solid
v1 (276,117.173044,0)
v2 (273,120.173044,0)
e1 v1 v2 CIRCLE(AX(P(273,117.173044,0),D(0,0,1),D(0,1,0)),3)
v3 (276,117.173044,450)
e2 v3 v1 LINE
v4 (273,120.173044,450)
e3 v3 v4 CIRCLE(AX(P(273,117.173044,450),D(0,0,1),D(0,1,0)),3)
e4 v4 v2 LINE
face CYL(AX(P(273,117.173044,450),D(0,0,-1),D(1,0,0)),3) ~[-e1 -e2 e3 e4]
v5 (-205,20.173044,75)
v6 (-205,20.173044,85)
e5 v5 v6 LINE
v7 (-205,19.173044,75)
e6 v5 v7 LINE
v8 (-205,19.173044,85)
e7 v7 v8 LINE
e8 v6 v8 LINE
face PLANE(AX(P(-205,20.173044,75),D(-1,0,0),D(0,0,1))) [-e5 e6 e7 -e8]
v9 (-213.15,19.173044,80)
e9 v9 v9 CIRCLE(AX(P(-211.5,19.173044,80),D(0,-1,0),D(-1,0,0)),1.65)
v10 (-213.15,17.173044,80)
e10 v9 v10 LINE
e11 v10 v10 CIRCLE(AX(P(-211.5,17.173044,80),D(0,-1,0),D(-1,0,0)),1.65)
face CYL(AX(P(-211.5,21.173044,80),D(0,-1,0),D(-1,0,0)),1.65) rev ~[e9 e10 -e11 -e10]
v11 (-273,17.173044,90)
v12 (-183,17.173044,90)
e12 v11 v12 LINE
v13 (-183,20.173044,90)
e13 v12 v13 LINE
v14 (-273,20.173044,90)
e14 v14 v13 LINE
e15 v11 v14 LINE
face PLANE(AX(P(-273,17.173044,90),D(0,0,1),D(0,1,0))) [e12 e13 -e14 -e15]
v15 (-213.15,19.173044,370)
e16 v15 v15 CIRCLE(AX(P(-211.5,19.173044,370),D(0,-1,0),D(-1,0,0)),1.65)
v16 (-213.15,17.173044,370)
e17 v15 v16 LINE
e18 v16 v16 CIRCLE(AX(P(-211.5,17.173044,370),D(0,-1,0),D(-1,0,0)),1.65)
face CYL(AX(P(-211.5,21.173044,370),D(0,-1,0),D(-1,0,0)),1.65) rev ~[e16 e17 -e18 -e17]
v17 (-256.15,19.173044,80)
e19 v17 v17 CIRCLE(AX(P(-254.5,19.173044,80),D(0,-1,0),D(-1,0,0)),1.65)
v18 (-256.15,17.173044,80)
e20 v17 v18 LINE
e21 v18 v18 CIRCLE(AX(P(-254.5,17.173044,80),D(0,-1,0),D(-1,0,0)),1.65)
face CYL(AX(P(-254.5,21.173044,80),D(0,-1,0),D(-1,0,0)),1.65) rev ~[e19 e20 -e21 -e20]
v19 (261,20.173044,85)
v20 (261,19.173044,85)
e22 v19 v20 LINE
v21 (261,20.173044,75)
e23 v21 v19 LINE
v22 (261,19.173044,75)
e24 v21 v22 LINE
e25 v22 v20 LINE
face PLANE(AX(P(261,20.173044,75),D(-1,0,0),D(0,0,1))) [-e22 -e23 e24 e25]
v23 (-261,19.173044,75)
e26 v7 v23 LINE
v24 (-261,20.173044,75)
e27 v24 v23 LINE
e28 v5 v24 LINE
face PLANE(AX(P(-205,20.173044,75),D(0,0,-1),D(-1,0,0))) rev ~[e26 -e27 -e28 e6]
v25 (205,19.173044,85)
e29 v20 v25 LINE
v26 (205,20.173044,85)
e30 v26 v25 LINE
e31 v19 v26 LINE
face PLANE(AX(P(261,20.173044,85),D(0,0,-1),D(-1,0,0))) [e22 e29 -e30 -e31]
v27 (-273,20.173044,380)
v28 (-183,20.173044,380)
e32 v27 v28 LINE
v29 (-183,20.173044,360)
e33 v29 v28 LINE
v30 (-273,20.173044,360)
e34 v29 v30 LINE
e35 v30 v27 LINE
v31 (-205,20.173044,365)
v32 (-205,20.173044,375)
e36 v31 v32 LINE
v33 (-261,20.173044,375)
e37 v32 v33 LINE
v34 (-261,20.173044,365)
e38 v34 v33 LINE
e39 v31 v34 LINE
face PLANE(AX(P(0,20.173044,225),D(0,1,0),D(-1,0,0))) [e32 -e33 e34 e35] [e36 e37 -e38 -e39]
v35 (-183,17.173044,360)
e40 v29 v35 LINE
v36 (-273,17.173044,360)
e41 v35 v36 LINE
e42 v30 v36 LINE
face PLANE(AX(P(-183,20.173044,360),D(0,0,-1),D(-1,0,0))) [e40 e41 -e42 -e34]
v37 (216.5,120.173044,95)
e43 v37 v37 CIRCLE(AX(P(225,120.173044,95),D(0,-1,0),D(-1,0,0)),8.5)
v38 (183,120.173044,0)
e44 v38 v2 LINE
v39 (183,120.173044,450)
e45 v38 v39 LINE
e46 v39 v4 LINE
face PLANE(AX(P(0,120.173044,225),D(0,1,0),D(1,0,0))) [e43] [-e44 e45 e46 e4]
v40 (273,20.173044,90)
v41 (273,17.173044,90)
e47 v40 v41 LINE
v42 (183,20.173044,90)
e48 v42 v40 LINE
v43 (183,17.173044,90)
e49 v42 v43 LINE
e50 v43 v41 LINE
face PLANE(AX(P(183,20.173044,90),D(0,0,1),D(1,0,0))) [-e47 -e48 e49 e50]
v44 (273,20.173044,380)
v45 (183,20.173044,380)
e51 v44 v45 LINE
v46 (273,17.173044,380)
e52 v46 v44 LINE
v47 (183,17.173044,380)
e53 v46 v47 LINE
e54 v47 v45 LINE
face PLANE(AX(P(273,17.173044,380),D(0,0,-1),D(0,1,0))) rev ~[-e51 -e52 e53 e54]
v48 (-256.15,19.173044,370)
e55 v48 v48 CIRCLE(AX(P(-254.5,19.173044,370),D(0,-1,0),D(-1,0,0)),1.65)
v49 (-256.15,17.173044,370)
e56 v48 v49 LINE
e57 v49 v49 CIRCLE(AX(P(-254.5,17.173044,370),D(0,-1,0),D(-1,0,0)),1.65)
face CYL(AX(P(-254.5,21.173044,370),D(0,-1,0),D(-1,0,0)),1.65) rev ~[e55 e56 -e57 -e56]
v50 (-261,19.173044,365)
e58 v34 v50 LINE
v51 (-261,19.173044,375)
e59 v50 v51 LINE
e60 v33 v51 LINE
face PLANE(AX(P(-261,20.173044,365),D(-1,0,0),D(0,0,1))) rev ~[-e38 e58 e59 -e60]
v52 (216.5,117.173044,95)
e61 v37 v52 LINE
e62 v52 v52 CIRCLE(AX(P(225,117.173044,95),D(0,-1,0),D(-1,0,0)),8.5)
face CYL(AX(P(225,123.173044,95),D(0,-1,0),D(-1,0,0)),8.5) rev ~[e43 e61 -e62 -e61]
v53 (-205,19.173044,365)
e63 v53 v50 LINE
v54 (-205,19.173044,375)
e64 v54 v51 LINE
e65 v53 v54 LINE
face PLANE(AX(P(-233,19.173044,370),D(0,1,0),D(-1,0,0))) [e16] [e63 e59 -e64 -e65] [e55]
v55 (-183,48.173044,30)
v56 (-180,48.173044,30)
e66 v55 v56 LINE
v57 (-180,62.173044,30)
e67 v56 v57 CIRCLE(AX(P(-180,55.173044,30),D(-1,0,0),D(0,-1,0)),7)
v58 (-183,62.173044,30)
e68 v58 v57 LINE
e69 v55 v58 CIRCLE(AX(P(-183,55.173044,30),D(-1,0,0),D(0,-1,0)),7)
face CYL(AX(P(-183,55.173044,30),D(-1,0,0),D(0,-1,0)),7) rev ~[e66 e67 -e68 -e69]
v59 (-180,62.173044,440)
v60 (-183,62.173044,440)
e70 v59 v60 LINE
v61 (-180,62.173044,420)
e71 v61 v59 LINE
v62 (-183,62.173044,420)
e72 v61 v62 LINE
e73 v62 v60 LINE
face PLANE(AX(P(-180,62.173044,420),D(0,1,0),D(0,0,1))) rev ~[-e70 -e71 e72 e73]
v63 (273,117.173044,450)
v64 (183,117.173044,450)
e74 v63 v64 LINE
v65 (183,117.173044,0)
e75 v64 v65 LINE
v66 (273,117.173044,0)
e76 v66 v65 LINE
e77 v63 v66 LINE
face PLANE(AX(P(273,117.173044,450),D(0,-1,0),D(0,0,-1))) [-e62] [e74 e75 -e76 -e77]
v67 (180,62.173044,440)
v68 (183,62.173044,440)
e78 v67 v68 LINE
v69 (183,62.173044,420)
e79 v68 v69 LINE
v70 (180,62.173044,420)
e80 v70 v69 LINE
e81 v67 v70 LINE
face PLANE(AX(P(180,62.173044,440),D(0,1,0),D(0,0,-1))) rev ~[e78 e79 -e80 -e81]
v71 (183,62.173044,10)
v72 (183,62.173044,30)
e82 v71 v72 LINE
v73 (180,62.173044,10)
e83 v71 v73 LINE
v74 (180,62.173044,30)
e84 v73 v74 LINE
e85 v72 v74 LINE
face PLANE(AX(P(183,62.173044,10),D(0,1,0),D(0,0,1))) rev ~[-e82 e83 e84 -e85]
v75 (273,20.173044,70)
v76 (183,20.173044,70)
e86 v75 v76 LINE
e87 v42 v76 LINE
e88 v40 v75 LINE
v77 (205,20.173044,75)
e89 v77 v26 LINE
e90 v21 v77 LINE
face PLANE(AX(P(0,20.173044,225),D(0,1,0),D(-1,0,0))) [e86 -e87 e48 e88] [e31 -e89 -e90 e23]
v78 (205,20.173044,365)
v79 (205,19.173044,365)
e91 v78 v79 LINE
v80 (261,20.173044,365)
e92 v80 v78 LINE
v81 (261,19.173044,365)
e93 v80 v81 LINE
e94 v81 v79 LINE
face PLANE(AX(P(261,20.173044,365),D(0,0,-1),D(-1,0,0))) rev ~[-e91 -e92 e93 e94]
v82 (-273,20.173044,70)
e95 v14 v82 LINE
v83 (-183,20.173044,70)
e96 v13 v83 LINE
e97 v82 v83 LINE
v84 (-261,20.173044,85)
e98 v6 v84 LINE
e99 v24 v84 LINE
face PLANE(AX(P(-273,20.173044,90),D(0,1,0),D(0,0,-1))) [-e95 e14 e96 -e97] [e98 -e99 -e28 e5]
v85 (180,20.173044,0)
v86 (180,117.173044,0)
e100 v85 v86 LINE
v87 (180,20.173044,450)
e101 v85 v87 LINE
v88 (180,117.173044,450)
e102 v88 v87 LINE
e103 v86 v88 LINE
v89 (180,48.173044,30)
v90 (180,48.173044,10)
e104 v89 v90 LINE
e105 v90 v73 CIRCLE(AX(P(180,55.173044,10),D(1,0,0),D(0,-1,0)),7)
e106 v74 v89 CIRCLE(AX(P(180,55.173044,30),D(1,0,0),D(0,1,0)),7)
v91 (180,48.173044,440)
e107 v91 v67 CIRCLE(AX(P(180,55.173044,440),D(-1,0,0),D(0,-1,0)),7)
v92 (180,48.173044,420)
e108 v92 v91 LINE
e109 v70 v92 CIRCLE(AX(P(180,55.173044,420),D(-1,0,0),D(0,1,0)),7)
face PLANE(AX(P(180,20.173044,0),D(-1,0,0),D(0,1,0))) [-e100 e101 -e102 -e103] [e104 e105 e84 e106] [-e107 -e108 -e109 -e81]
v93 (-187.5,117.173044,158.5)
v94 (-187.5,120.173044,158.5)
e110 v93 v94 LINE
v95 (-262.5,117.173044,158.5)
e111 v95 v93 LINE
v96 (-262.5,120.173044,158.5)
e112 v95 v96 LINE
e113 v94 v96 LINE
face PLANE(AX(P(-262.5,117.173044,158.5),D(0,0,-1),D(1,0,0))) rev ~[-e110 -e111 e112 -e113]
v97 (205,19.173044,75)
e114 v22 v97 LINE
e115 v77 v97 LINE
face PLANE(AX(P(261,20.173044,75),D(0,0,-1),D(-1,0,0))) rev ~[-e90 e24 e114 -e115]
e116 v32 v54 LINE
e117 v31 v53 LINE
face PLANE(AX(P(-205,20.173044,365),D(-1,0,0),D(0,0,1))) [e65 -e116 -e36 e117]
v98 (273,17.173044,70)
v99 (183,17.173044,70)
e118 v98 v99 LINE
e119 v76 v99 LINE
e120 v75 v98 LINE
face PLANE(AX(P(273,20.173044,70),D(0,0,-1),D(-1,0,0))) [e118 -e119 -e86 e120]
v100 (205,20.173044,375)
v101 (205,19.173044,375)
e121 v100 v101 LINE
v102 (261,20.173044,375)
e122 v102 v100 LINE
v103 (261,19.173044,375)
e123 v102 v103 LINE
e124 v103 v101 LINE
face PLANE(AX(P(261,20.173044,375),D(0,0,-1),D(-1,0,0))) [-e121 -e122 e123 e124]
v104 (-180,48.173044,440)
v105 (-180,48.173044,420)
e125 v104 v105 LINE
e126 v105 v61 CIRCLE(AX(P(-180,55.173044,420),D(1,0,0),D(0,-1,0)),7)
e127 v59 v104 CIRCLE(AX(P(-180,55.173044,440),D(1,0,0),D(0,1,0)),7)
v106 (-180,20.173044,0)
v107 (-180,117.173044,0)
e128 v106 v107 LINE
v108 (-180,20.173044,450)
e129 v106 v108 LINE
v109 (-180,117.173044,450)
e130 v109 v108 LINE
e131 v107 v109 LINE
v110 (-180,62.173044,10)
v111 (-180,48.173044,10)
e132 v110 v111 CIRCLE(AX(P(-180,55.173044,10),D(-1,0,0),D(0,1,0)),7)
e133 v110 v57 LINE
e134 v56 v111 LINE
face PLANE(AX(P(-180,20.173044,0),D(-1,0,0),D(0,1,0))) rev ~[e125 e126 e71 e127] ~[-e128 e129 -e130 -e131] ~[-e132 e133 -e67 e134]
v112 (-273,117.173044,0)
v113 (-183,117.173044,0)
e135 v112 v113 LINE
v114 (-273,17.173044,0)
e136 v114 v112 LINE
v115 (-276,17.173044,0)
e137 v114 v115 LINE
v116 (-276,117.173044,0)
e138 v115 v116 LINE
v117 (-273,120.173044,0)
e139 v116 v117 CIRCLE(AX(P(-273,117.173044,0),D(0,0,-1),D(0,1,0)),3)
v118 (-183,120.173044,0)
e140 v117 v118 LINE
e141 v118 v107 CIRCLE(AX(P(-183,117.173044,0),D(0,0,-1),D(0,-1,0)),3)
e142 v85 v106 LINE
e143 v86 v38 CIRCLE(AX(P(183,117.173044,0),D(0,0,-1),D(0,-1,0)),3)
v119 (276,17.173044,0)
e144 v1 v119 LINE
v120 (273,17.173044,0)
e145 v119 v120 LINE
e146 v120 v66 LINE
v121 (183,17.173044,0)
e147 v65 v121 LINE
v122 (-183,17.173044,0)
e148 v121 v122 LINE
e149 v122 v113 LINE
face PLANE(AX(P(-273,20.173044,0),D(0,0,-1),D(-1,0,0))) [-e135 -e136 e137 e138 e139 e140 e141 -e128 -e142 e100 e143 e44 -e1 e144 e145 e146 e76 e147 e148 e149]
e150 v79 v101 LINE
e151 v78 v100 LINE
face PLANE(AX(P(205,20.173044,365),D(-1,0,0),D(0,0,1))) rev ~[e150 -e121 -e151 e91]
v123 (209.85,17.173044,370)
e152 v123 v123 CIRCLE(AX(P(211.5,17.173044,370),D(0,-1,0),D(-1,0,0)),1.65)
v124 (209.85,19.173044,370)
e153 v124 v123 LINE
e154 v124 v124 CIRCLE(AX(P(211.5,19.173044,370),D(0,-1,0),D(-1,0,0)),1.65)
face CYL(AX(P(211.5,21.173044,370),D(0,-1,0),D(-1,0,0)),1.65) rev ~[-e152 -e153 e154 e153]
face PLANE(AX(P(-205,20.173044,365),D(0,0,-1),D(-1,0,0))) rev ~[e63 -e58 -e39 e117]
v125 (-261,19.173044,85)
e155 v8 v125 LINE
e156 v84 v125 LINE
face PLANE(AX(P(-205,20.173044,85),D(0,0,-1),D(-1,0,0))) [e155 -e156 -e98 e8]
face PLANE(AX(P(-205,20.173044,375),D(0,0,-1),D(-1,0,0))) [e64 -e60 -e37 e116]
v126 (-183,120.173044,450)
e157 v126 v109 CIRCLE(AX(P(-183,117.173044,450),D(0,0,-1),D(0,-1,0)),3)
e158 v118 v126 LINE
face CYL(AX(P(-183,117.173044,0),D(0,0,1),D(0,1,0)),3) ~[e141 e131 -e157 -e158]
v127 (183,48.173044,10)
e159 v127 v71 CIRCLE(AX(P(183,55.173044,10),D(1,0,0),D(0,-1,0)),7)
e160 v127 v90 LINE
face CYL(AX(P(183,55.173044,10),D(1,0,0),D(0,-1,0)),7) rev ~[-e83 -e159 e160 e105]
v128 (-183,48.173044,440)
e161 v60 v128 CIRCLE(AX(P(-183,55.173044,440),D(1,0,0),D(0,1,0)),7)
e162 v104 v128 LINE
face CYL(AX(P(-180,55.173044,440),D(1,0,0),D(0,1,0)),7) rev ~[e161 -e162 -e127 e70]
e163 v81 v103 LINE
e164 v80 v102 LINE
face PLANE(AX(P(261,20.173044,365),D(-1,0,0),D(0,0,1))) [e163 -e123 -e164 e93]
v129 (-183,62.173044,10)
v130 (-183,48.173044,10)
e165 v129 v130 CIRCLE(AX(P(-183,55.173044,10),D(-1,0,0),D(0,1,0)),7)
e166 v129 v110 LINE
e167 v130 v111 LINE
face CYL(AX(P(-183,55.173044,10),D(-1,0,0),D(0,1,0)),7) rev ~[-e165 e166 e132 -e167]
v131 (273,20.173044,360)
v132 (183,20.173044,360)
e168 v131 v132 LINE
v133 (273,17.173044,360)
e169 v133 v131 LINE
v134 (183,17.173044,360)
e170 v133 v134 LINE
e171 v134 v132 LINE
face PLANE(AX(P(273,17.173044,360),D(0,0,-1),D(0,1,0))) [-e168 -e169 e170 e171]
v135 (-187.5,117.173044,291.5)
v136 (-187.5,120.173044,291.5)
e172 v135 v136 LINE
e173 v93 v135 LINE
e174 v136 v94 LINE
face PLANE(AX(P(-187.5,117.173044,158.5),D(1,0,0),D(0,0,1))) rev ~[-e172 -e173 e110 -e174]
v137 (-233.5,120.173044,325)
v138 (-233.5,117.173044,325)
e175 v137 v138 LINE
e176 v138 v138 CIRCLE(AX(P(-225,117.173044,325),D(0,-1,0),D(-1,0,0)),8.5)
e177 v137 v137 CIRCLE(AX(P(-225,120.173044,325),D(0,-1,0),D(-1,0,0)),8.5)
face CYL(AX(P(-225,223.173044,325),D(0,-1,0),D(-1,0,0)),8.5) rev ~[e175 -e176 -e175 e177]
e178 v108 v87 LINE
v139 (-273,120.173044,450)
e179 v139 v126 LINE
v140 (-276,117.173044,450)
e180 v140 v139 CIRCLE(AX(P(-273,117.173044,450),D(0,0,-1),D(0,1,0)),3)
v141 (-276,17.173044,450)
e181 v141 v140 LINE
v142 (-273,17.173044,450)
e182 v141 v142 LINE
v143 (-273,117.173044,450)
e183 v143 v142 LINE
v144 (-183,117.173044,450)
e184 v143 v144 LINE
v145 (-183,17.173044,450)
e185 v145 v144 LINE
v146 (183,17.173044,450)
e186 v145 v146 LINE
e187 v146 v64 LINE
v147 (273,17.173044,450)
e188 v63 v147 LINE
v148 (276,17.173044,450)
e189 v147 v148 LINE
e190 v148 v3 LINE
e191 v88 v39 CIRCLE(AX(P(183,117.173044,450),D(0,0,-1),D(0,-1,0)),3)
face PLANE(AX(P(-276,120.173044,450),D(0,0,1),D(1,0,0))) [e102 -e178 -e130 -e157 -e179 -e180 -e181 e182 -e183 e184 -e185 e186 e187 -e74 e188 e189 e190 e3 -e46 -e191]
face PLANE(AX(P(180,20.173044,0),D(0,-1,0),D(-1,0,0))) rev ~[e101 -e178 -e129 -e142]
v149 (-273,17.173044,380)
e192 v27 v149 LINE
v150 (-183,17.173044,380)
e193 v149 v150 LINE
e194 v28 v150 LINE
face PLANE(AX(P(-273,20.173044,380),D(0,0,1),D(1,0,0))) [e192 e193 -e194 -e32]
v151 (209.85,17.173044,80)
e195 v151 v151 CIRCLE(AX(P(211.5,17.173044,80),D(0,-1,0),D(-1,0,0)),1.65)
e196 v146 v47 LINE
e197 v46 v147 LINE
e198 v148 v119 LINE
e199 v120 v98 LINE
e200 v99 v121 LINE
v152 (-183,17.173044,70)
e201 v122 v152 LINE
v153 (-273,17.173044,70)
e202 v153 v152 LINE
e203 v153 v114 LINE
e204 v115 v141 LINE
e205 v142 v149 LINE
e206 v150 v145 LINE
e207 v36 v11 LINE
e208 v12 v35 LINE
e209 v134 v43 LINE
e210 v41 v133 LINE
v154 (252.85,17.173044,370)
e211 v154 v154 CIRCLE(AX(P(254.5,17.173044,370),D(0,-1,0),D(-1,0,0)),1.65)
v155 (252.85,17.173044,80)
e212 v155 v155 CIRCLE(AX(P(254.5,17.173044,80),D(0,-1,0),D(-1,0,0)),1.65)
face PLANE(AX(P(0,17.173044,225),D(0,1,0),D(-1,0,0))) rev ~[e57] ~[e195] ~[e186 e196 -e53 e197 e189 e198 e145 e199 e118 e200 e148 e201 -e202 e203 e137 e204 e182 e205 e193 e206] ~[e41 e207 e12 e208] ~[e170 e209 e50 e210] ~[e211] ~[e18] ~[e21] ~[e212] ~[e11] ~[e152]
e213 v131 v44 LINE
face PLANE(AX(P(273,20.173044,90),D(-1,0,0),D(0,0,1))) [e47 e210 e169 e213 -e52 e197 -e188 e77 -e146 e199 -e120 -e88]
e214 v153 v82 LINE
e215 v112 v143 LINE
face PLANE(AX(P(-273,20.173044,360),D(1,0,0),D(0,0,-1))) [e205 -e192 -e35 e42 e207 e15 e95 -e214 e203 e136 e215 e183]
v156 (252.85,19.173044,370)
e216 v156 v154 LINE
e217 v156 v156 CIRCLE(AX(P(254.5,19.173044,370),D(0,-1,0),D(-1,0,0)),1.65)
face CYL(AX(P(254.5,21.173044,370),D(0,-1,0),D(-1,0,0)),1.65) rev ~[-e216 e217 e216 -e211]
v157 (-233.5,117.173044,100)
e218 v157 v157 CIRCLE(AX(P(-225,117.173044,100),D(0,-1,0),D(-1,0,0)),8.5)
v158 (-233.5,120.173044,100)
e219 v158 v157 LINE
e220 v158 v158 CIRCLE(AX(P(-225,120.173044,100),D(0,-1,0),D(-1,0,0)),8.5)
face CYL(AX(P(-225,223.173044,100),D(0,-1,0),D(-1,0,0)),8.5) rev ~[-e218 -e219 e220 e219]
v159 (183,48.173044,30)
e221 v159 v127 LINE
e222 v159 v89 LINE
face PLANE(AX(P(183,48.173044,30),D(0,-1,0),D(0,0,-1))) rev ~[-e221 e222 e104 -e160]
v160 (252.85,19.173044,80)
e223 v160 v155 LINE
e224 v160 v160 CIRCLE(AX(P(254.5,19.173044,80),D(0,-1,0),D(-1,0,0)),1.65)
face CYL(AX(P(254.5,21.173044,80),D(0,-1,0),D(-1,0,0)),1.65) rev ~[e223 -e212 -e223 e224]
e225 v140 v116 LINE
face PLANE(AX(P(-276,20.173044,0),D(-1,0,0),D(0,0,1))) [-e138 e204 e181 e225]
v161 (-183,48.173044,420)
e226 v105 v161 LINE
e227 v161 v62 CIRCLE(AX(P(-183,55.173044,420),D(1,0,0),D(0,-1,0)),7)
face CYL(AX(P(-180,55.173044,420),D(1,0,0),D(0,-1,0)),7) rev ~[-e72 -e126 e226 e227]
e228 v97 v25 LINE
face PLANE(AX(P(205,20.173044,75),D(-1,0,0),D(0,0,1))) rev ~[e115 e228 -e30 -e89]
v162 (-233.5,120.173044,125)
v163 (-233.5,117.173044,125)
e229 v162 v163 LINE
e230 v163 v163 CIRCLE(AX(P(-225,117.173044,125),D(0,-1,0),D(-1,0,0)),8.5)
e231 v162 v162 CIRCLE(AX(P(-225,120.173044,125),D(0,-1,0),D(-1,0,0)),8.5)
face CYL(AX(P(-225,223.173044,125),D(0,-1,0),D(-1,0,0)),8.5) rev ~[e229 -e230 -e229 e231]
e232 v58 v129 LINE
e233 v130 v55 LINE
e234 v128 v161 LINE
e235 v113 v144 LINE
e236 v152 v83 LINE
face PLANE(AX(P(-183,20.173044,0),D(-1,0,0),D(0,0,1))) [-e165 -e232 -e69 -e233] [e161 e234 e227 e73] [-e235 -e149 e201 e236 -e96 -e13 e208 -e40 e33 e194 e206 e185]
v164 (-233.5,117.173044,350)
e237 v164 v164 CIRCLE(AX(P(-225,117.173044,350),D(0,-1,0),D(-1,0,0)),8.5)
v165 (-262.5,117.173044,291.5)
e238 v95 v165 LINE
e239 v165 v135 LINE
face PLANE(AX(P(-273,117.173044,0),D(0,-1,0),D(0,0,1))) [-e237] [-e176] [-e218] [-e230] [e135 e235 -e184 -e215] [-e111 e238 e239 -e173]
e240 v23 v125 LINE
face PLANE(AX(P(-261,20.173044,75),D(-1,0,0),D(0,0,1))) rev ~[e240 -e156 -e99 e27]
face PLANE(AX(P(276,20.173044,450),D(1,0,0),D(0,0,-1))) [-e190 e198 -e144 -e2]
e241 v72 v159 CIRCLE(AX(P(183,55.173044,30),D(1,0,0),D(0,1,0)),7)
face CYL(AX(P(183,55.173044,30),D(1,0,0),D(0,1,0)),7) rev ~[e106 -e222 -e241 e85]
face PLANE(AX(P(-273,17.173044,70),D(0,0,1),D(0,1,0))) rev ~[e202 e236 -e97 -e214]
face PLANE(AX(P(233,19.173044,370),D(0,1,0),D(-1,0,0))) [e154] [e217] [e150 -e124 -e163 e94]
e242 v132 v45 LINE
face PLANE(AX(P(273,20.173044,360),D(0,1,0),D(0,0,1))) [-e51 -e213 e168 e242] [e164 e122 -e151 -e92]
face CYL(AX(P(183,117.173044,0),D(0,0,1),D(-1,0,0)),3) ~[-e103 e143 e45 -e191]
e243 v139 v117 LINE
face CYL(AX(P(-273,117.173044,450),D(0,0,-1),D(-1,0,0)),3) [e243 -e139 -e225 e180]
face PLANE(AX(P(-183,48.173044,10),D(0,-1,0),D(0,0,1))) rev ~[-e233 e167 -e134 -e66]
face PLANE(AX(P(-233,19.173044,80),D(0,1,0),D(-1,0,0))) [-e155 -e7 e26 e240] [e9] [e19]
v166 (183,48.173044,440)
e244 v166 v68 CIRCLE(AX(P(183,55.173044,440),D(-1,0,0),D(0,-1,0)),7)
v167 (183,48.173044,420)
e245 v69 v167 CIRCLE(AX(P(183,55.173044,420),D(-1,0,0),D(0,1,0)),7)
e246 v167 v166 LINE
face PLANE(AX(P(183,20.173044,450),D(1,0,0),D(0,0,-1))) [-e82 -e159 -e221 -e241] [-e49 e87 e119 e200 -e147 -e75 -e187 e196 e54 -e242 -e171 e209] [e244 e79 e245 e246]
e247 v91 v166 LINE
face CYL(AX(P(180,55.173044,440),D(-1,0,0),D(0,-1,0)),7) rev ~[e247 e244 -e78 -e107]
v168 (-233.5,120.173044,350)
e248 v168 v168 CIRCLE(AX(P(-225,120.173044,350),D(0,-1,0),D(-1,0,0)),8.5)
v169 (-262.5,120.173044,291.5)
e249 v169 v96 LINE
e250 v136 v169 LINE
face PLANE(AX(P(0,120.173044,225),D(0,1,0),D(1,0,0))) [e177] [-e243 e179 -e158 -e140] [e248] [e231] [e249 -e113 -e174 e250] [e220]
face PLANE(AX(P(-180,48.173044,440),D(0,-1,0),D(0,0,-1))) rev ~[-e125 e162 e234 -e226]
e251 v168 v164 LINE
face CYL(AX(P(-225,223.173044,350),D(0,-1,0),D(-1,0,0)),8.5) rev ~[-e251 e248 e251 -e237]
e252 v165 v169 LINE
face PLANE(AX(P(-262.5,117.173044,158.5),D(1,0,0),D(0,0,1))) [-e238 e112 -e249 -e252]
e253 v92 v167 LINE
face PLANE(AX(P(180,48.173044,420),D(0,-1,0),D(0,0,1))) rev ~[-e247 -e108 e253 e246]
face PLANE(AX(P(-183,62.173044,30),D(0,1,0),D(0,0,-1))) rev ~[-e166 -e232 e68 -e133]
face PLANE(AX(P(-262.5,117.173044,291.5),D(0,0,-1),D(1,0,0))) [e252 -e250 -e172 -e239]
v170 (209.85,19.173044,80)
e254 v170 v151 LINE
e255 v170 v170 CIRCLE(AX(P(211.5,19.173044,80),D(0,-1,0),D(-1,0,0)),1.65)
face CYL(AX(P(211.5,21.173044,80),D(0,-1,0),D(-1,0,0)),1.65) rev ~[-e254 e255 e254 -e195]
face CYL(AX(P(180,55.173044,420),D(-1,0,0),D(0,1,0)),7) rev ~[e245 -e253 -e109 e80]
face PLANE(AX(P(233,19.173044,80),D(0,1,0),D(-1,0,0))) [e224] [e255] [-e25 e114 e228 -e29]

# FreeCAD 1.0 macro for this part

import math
import FreeCAD as App
import Part
import Sketcher
from FreeCAD import Vector
Q = App.Units.Quantity


def edges_at(feature, points):
    """Names of the edges that pass closest to the given points."""
    edges = feature.Shape.Edges
    near = lambda p: min(range(len(edges)), key=lambda i: edges[i].distToShape(Part.Vertex(*p))[0])
    return sorted({f"Edge{near(p) + 1}" for p in points})


def add_polygon(sketch, points):
    """Adds a closed chain of lines whose ends are joined by coincident constraints."""
    first, n = sketch.GeometryCount, len(points)
    for a, b in zip(points, points[1:] + points[:1]):
        sketch.addGeometry(Part.LineSegment(App.Vector(*a, 0), App.Vector(*b, 0)), False)
    for i in range(n):
        sketch.addConstraint(Sketcher.Constraint("Coincident", first + i, 2, first + (i + 1) % n, 1))

doc = App.newDocument("Part")
body = doc.addObject("PartDesign::Body", "Body")

sketch1 = doc.addObject("Sketcher::SketchObject", "Sketch")
body.addObject(sketch1)
sketch1.AttachmentSupport = (doc.XZ_Plane, [""])
sketch1.MapMode = "FlatFace"
sketch1.AttachmentOffset = App.Placement(Vector(0, 0, -120.173044), App.Rotation())
add_polygon(sketch1, [(-276, 0), (-276, 450), (276, 450), (276, 0)])
sketch1.addConstraint(Sketcher.Constraint("Vertical", 0))
sketch1.addConstraint(Sketcher.Constraint("Horizontal", 1))
sketch1.addConstraint(Sketcher.Constraint("Vertical", 2))
sketch1.addConstraint(Sketcher.Constraint("Horizontal", 3))
sketch1.addConstraint(Sketcher.Constraint("Symmetric", 2, 2, 3, 2, -1, 1))
sketch1.addConstraint(Sketcher.Constraint("DistanceX", 1, 1, 1, 2, Q("552 mm")))
sketch1.addConstraint(Sketcher.Constraint("DistanceY", 0, 1, 0, 2, Q("450 mm")))
pad1 = doc.addObject("PartDesign::Pad", "Pad")
body.addObject(pad1)
pad1.Profile = sketch1
pad1.Length = 100

sketch2 = doc.addObject("Sketcher::SketchObject", "Sketch001")
body.addObject(sketch2)
sketch2.AttachmentSupport = (doc.YZ_Plane, [""])
sketch2.MapMode = "FlatFace"
sketch2.AttachmentOffset = App.Placement(Vector(0, 0, -273), App.Rotation())
add_polygon(sketch2, [(117, 450), (117, 0), (20, 0), (20, 450)])
sketch2.addConstraint(Sketcher.Constraint("Vertical", 0))
sketch2.addConstraint(Sketcher.Constraint("Horizontal", 1))
sketch2.addConstraint(Sketcher.Constraint("Vertical", 2))
sketch2.addConstraint(Sketcher.Constraint("Horizontal", 3))
sketch2.addConstraint(Sketcher.Constraint("PointOnObject", 0, 2, -1))
sketch2.addConstraint(Sketcher.Constraint("DistanceX", 1, 2, 1, 1, Q("97 mm")))
sketch2.addConstraint(Sketcher.Constraint("DistanceY", 0, 2, 0, 1, Q("450 mm")))
sketch2.addConstraint(Sketcher.Constraint("DistanceX", -1, 1, 0, 2, Q("117.173044 mm")))
pocket1 = doc.addObject("PartDesign::Pocket", "Pocket")
body.addObject(pocket1)
pocket1.Profile = sketch2
pocket1.Length = 90
pocket1.Reversed = True

sketch3 = doc.addObject("Sketcher::SketchObject", "Sketch002")
body.addObject(sketch3)
sketch3.AttachmentSupport = (doc.YZ_Plane, [""])
sketch3.MapMode = "FlatFace"
sketch3.AttachmentOffset = App.Placement(Vector(0, 0, 273), App.Rotation())
add_polygon(sketch3, [(117, 450), (20, 450), (20, 0), (117, 0)])
sketch3.addConstraint(Sketcher.Constraint("Horizontal", 0))
sketch3.addConstraint(Sketcher.Constraint("Vertical", 1))
sketch3.addConstraint(Sketcher.Constraint("Horizontal", 2))
sketch3.addConstraint(Sketcher.Constraint("Vertical", 3))
sketch3.addConstraint(Sketcher.Constraint("PointOnObject", 1, 2, -1))
sketch3.addConstraint(Sketcher.Constraint("DistanceX", 0, 2, 0, 1, Q("97 mm")))
sketch3.addConstraint(Sketcher.Constraint("DistanceY", 1, 2, 1, 1, Q("450 mm")))
sketch3.addConstraint(Sketcher.Constraint("DistanceX", -1, 1, 0, 2, Q("20.173044 mm")))
pocket2 = doc.addObject("PartDesign::Pocket", "Pocket001")
body.addObject(pocket2)
pocket2.Profile = sketch3
pocket2.Length = 90

sketch4 = doc.addObject("Sketcher::SketchObject", "Sketch003")
body.addObject(sketch4)
sketch4.AttachmentSupport = (doc.XZ_Plane, [""])
sketch4.MapMode = "FlatFace"
sketch4.AttachmentOffset = App.Placement(Vector(0, 0, -20.173044), App.Rotation())
add_polygon(sketch4, [(-273, 0), (-273, 360), (-183, 360), (-183, 0), (183, 0), (183, 70), (273, 70), (273, 0), (276, 0), (276, 450), (273, 450), (273, 90), (183, 90), (183, 450), (-183, 450), (-183, 380), (-273, 380), (-273, 450), (-276, 450), (-276, 0)])
sketch4.addConstraint(Sketcher.Constraint("Vertical", 0))
sketch4.addConstraint(Sketcher.Constraint("Horizontal", 1))
sketch4.addConstraint(Sketcher.Constraint("Vertical", 2))
sketch4.addConstraint(Sketcher.Constraint("Horizontal", 3))
sketch4.addConstraint(Sketcher.Constraint("Vertical", 4))
sketch4.addConstraint(Sketcher.Constraint("Horizontal", 5))
sketch4.addConstraint(Sketcher.Constraint("Vertical", 6))
sketch4.addConstraint(Sketcher.Constraint("Horizontal", 7))
sketch4.addConstraint(Sketcher.Constraint("Vertical", 8))
sketch4.addConstraint(Sketcher.Constraint("Horizontal", 9))
sketch4.addConstraint(Sketcher.Constraint("Vertical", 10))
sketch4.addConstraint(Sketcher.Constraint("Horizontal", 11))
sketch4.addConstraint(Sketcher.Constraint("Vertical", 12))
sketch4.addConstraint(Sketcher.Constraint("Horizontal", 13))
sketch4.addConstraint(Sketcher.Constraint("Vertical", 14))
sketch4.addConstraint(Sketcher.Constraint("Horizontal", 15))
sketch4.addConstraint(Sketcher.Constraint("Vertical", 16))
sketch4.addConstraint(Sketcher.Constraint("Horizontal", 17))
sketch4.addConstraint(Sketcher.Constraint("Vertical", 18))
sketch4.addConstraint(Sketcher.Constraint("Horizontal", 19))
sketch4.addConstraint(Sketcher.Constraint("Symmetric", 2, 2, 3, 2, -1, 1))
sketch4.addConstraint(Sketcher.Constraint("Symmetric", 7, 2, 18, 2, -1, 1))
sketch4.addConstraint(Sketcher.Constraint("Symmetric", 9, 2, 16, 2, -2))
sketch4.addConstraint(Sketcher.Constraint("Symmetric", 6, 2, 19, 2, -2))
sketch4.addConstraint(Sketcher.Constraint("Horizontal", 9, 2, 12, 2))
sketch4.addConstraint(Sketcher.Constraint("Vertical", 6, 2, 9, 2))
sketch4.addConstraint(Sketcher.Constraint("Vertical", 4, 2, 11, 2))
sketch4.addConstraint(Sketcher.Constraint("Vertical", 2, 2, 13, 2))
sketch4.addConstraint(Sketcher.Constraint("Equal", 2, 10))
sketch4.addConstraint(Sketcher.Constraint("Equal", 6, 14))
sketch4.addConstraint(Sketcher.Constraint("DistanceX", 1, 1, 1, 2, Q("90 mm")))
sketch4.addConstraint(Sketcher.Constraint("DistanceX", 3, 1, 3, 2, Q("366 mm")))
sketch4.addConstraint(Sketcher.Constraint("DistanceX", 7, 1, 7, 2, Q("3 mm")))
sketch4.addConstraint(Sketcher.Constraint("DistanceY", 0, 1, 0, 2, Q("360 mm")))
sketch4.addConstraint(Sketcher.Constraint("DistanceY", 4, 1, 4, 2, Q("70 mm")))
sketch4.addConstraint(Sketcher.Constraint("DistanceY", 8, 1, 8, 2, Q("450 mm")))
pad2 = doc.addObject("PartDesign::Pad", "Pad001")
body.addObject(pad2)
pad2.Profile = sketch4
pad2.Length = 3

sketch5 = doc.addObject("Sketcher::SketchObject", "Sketch004")
body.addObject(sketch5)
sketch5.AttachmentSupport = (doc.XY_Plane, [""])
sketch5.MapMode = "FlatFace"
add_polygon(sketch5, [(180, 120), (180, 20), (-180, 20), (-180, 120)])
sketch5.addConstraint(Sketcher.Constraint("Vertical", 0))
sketch5.addConstraint(Sketcher.Constraint("Horizontal", 1))
sketch5.addConstraint(Sketcher.Constraint("Vertical", 2))
sketch5.addConstraint(Sketcher.Constraint("Horizontal", 3))
sketch5.addConstraint(Sketcher.Constraint("DistanceX", 1, 2, 1, 1, Q("360 mm")))
sketch5.addConstraint(Sketcher.Constraint("DistanceY", 0, 2, 0, 1, Q("100 mm")))
sketch5.addConstraint(Sketcher.Constraint("DistanceX", -1, 1, 0, 2, Q("180 mm")))
sketch5.addConstraint(Sketcher.Constraint("DistanceY", -1, 1, 0, 2, Q("20.173044 mm")))
pocket3 = doc.addObject("PartDesign::Pocket", "Pocket002")
body.addObject(pocket3)
pocket3.Profile = sketch5
pocket3.Type = "ThroughAll"
pocket3.Reversed = True

sketch6 = doc.addObject("Sketcher::SketchObject", "Sketch005")
body.addObject(sketch6)
sketch6.AttachmentSupport = (doc.YZ_Plane, [""])
sketch6.MapMode = "FlatFace"
sketch6.AttachmentOffset = App.Placement(Vector(0, 0, -273), App.Rotation())
add_polygon(sketch6, [(20.2, 90), (17.2, 90), (17.2, 70), (20.2, 70)])
sketch6.addConstraint(Sketcher.Constraint("Horizontal", 0))
sketch6.addConstraint(Sketcher.Constraint("Vertical", 1))
sketch6.addConstraint(Sketcher.Constraint("Horizontal", 2))
sketch6.addConstraint(Sketcher.Constraint("Vertical", 3))
sketch6.addConstraint(Sketcher.Constraint("DistanceX", 0, 2, 0, 1, Q("3 mm")))
sketch6.addConstraint(Sketcher.Constraint("DistanceY", 1, 2, 1, 1, Q("20 mm")))
sketch6.addConstraint(Sketcher.Constraint("DistanceY", -1, 1, 0, 2, Q("90 mm")))
sketch6.addConstraint(Sketcher.Constraint("DistanceX", -1, 1, 0, 2, Q("17.173044 mm")))
pad3 = doc.addObject("PartDesign::Pad", "Pad002")
body.addObject(pad3)
pad3.Profile = sketch6
pad3.Length = 90

sketch7 = doc.addObject("Sketcher::SketchObject", "Sketch006")
body.addObject(sketch7)
sketch7.AttachmentSupport = (doc.YZ_Plane, [""])
sketch7.MapMode = "FlatFace"
sketch7.AttachmentOffset = App.Placement(Vector(0, 0, 273), App.Rotation())
add_polygon(sketch7, [(20.2, 360), (17.2, 360), (17.2, 380), (20.2, 380)])
sketch7.addConstraint(Sketcher.Constraint("Horizontal", 0))
sketch7.addConstraint(Sketcher.Constraint("Vertical", 1))
sketch7.addConstraint(Sketcher.Constraint("Horizontal", 2))
sketch7.addConstraint(Sketcher.Constraint("Vertical", 3))
sketch7.addConstraint(Sketcher.Constraint("DistanceX", 0, 2, 0, 1, Q("3 mm")))
sketch7.addConstraint(Sketcher.Constraint("DistanceY", 1, 1, 1, 2, Q("20 mm")))
sketch7.addConstraint(Sketcher.Constraint("DistanceY", -1, 1, 0, 2, Q("360 mm")))
sketch7.addConstraint(Sketcher.Constraint("DistanceX", -1, 1, 0, 2, Q("17.173044 mm")))
pad4 = doc.addObject("PartDesign::Pad", "Pad003")
body.addObject(pad4)
pad4.Profile = sketch7
pad4.Length = 90
pad4.Reversed = True

sketch8 = doc.addObject("Sketcher::SketchObject", "Sketch007")
body.addObject(sketch8)
sketch8.AttachmentSupport = (doc.YZ_Plane, [""])
sketch8.MapMode = "FlatFace"
sketch8.AttachmentOffset = App.Placement(Vector(0, 0, -180), App.Rotation())
sketch8.addGeometry(Part.LineSegment(Vector(48, 440, 0), Vector(48, 420, 0)), False)
sketch8.addGeometry(Part.ArcOfCircle(Part.Circle(Vector(55, 420, 0), Vector(0, 0, 1), 7), math.radians(180), math.radians(360)), False)
sketch8.addGeometry(Part.LineSegment(Vector(62, 420, 0), Vector(62, 440, 0)), False)
sketch8.addGeometry(Part.ArcOfCircle(Part.Circle(Vector(55, 440, 0), Vector(0, 0, 1), 7), math.radians(0), math.radians(180)), False)
sketch8.addConstraint(Sketcher.Constraint("Tangent", 0, 2, 1, 1))
sketch8.addConstraint(Sketcher.Constraint("Tangent", 1, 2, 2, 1))
sketch8.addConstraint(Sketcher.Constraint("Tangent", 2, 2, 3, 1))
sketch8.addConstraint(Sketcher.Constraint("Tangent", 3, 2, 0, 1))
sketch8.addConstraint(Sketcher.Constraint("Vertical", 0))
sketch8.addConstraint(Sketcher.Constraint("Vertical", 2))
sketch8.addConstraint(Sketcher.Constraint("Radius", 1, Q("7 mm")))
sketch8.addConstraint(Sketcher.Constraint("DistanceY", 0, 2, 0, 1, Q("20 mm")))
sketch8.addConstraint(Sketcher.Constraint("DistanceY", -1, 1, 1, 3, Q("420 mm")))
sketch8.addConstraint(Sketcher.Constraint("DistanceX", -1, 1, 1, 3, Q("55.173044 mm")))
pocket4 = doc.addObject("PartDesign::Pocket", "Pocket003")
body.addObject(pocket4)
pocket4.Profile = sketch8
pocket4.Type = "UpToFirst"

sketch9 = doc.addObject("Sketcher::SketchObject", "Sketch008")
body.addObject(sketch9)
sketch9.AttachmentSupport = (doc.XZ_Plane, [""])
sketch9.MapMode = "FlatFace"
sketch9.AttachmentOffset = App.Placement(Vector(0, 0, -117.173044), App.Rotation())
add_polygon(sketch9, [(-262, 292), (-262, 158), (-188, 158), (-188, 292)])
sketch9.addConstraint(Sketcher.Constraint("Vertical", 0))
sketch9.addConstraint(Sketcher.Constraint("Horizontal", 1))
sketch9.addConstraint(Sketcher.Constraint("Vertical", 2))
sketch9.addConstraint(Sketcher.Constraint("Horizontal", 3))
sketch9.addConstraint(Sketcher.Constraint("DistanceX", 1, 1, 1, 2, Q("75 mm")))
sketch9.addConstraint(Sketcher.Constraint("DistanceY", 0, 2, 0, 1, Q("133 mm")))
sketch9.addConstraint(Sketcher.Constraint("DistanceX", 0, 2, -1, 1, Q("262.5 mm")))
sketch9.addConstraint(Sketcher.Constraint("DistanceY", -1, 1, 0, 2, Q("158.5 mm")))
pocket5 = doc.addObject("PartDesign::Pocket", "Pocket004")
body.addObject(pocket5)
pocket5.Profile = sketch9
pocket5.Type = "ThroughAll"

sketch10 = doc.addObject("Sketcher::SketchObject", "Sketch009")
body.addObject(sketch10)
sketch10.AttachmentSupport = (doc.YZ_Plane, [""])
sketch10.MapMode = "FlatFace"
sketch10.AttachmentOffset = App.Placement(Vector(0, 0, -183), App.Rotation())
sketch10.addGeometry(Part.LineSegment(Vector(48, 10, 0), Vector(48, 30, 0)), False)
sketch10.addGeometry(Part.ArcOfCircle(Part.Circle(Vector(55, 30, 0), Vector(0, 0, 1), 7), math.radians(0), math.radians(180)), False)
sketch10.addGeometry(Part.LineSegment(Vector(62, 30, 0), Vector(62, 10, 0)), False)
sketch10.addGeometry(Part.ArcOfCircle(Part.Circle(Vector(55, 10, 0), Vector(0, 0, 1), 7), math.radians(180), math.radians(360)), False)
sketch10.addConstraint(Sketcher.Constraint("Tangent", 0, 2, 1, 2))
sketch10.addConstraint(Sketcher.Constraint("Tangent", 1, 1, 2, 1))
sketch10.addConstraint(Sketcher.Constraint("Tangent", 2, 2, 3, 2))
sketch10.addConstraint(Sketcher.Constraint("Tangent", 3, 1, 0, 1))
sketch10.addConstraint(Sketcher.Constraint("Vertical", 0))
sketch10.addConstraint(Sketcher.Constraint("Vertical", 2))
sketch10.addConstraint(Sketcher.Constraint("Radius", 1, Q("7 mm")))
sketch10.addConstraint(Sketcher.Constraint("DistanceY", 0, 1, 0, 2, Q("20 mm")))
sketch10.addConstraint(Sketcher.Constraint("DistanceY", -1, 1, 1, 3, Q("30 mm")))
sketch10.addConstraint(Sketcher.Constraint("DistanceX", -1, 1, 1, 3, Q("55.173044 mm")))
pocket6 = doc.addObject("PartDesign::Pocket", "Pocket005")
body.addObject(pocket6)
pocket6.Profile = sketch10
pocket6.Type = "UpToFirst"
pocket6.Reversed = True

sketch11 = doc.addObject("Sketcher::SketchObject", "Sketch010")
body.addObject(sketch11)
sketch11.AttachmentSupport = (doc.YZ_Plane, [""])
sketch11.MapMode = "FlatFace"
sketch11.AttachmentOffset = App.Placement(Vector(0, 0, 180), App.Rotation())
sketch11.addGeometry(Part.LineSegment(Vector(62, 440, 0), Vector(62, 420, 0)), False)
sketch11.addGeometry(Part.ArcOfCircle(Part.Circle(Vector(55, 420, 0), Vector(0, 0, 1), 7), math.radians(180), math.radians(360)), False)
sketch11.addGeometry(Part.LineSegment(Vector(48, 420, 0), Vector(48, 440, 0)), False)
sketch11.addGeometry(Part.ArcOfCircle(Part.Circle(Vector(55, 440, 0), Vector(0, 0, 1), 7), math.radians(0), math.radians(180)), False)
sketch11.addConstraint(Sketcher.Constraint("Tangent", 0, 2, 1, 2))
sketch11.addConstraint(Sketcher.Constraint("Tangent", 1, 1, 2, 1))
sketch11.addConstraint(Sketcher.Constraint("Tangent", 2, 2, 3, 2))
sketch11.addConstraint(Sketcher.Constraint("Tangent", 3, 1, 0, 1))
sketch11.addConstraint(Sketcher.Constraint("Vertical", 0))
sketch11.addConstraint(Sketcher.Constraint("Vertical", 2))
sketch11.addConstraint(Sketcher.Constraint("Radius", 1, Q("7 mm")))
sketch11.addConstraint(Sketcher.Constraint("DistanceY", 0, 2, 0, 1, Q("20 mm")))
sketch11.addConstraint(Sketcher.Constraint("DistanceY", -1, 1, 1, 3, Q("420 mm")))
sketch11.addConstraint(Sketcher.Constraint("DistanceX", -1, 1, 1, 3, Q("55.173044 mm")))
pocket7 = doc.addObject("PartDesign::Pocket", "Pocket006")
body.addObject(pocket7)
pocket7.Profile = sketch11
pocket7.Type = "UpToFirst"
pocket7.Reversed = True

sketch12 = doc.addObject("Sketcher::SketchObject", "Sketch011")
body.addObject(sketch12)
sketch12.AttachmentSupport = (doc.YZ_Plane, [""])
sketch12.MapMode = "FlatFace"
sketch12.AttachmentOffset = App.Placement(Vector(0, 0, 183), App.Rotation())
sketch12.addGeometry(Part.LineSegment(Vector(62, 10, 0), Vector(62, 30, 0)), False)
sketch12.addGeometry(Part.ArcOfCircle(Part.Circle(Vector(55, 30, 0), Vector(0, 0, 1), 7), math.radians(0), math.radians(180)), False)
sketch12.addGeometry(Part.LineSegment(Vector(48, 30, 0), Vector(48, 10, 0)), False)
sketch12.addGeometry(Part.ArcOfCircle(Part.Circle(Vector(55, 10, 0), Vector(0, 0, 1), 7), math.radians(180), math.radians(360)), False)
sketch12.addConstraint(Sketcher.Constraint("Tangent", 0, 2, 1, 1))
sketch12.addConstraint(Sketcher.Constraint("Tangent", 1, 2, 2, 1))
sketch12.addConstraint(Sketcher.Constraint("Tangent", 2, 2, 3, 1))
sketch12.addConstraint(Sketcher.Constraint("Tangent", 3, 2, 0, 1))
sketch12.addConstraint(Sketcher.Constraint("Vertical", 0))
sketch12.addConstraint(Sketcher.Constraint("Vertical", 2))
sketch12.addConstraint(Sketcher.Constraint("Radius", 1, Q("7 mm")))
sketch12.addConstraint(Sketcher.Constraint("DistanceY", 0, 1, 0, 2, Q("20 mm")))
sketch12.addConstraint(Sketcher.Constraint("DistanceY", -1, 1, 1, 3, Q("30 mm")))
sketch12.addConstraint(Sketcher.Constraint("DistanceX", -1, 1, 1, 3, Q("55.173044 mm")))
pocket8 = doc.addObject("PartDesign::Pocket", "Pocket007")
body.addObject(pocket8)
pocket8.Profile = sketch12
pocket8.Type = "UpToFirst"

sketch13 = doc.addObject("Sketcher::SketchObject", "Sketch012")
body.addObject(sketch13)
sketch13.AttachmentSupport = (doc.XZ_Plane, [""])
sketch13.MapMode = "FlatFace"
sketch13.AttachmentOffset = App.Placement(Vector(0, 0, -20.173044), App.Rotation())
add_polygon(sketch13, [(-205, 85), (-205, 75), (-261, 75), (-261, 85)])
sketch13.addConstraint(Sketcher.Constraint("Vertical", 0))
sketch13.addConstraint(Sketcher.Constraint("Horizontal", 1))
sketch13.addConstraint(Sketcher.Constraint("Vertical", 2))
sketch13.addConstraint(Sketcher.Constraint("Horizontal", 3))
sketch13.addConstraint(Sketcher.Constraint("DistanceX", 1, 2, 1, 1, Q("56 mm")))
sketch13.addConstraint(Sketcher.Constraint("DistanceY", 0, 2, 0, 1, Q("10 mm")))
sketch13.addConstraint(Sketcher.Constraint("DistanceX", 0, 2, -1, 1, Q("205 mm")))
sketch13.addConstraint(Sketcher.Constraint("DistanceY", -1, 1, 0, 2, Q("75 mm")))
pocket9 = doc.addObject("PartDesign::Pocket", "Pocket008")
body.addObject(pocket9)
pocket9.Profile = sketch13
pocket9.Length = 1
pocket9.Reversed = True

sketch14 = doc.addObject("Sketcher::SketchObject", "Sketch013")
body.addObject(sketch14)
sketch14.AttachmentSupport = (doc.XZ_Plane, [""])
sketch14.MapMode = "FlatFace"
sketch14.AttachmentOffset = App.Placement(Vector(0, 0, -20.173044), App.Rotation())
add_polygon(sketch14, [(-205, 375), (-205, 365), (-261, 365), (-261, 375)])
sketch14.addConstraint(Sketcher.Constraint("Vertical", 0))
sketch14.addConstraint(Sketcher.Constraint("Horizontal", 1))
sketch14.addConstraint(Sketcher.Constraint("Vertical", 2))
sketch14.addConstraint(Sketcher.Constraint("Horizontal", 3))
sketch14.addConstraint(Sketcher.Constraint("DistanceX", 1, 2, 1, 1, Q("56 mm")))
sketch14.addConstraint(Sketcher.Constraint("DistanceY", 0, 2, 0, 1, Q("10 mm")))
sketch14.addConstraint(Sketcher.Constraint("DistanceX", 0, 2, -1, 1, Q("205 mm")))
sketch14.addConstraint(Sketcher.Constraint("DistanceY", -1, 1, 0, 2, Q("365 mm")))
pocket10 = doc.addObject("PartDesign::Pocket", "Pocket009")
body.addObject(pocket10)
pocket10.Profile = sketch14
pocket10.Length = 1
pocket10.Reversed = True

sketch15 = doc.addObject("Sketcher::SketchObject", "Sketch014")
body.addObject(sketch15)
sketch15.AttachmentSupport = (doc.XZ_Plane, [""])
sketch15.MapMode = "FlatFace"
sketch15.AttachmentOffset = App.Placement(Vector(0, 0, -20.173044), App.Rotation())
add_polygon(sketch15, [(261, 375), (261, 365), (205, 365), (205, 375)])
sketch15.addConstraint(Sketcher.Constraint("Vertical", 0))
sketch15.addConstraint(Sketcher.Constraint("Horizontal", 1))
sketch15.addConstraint(Sketcher.Constraint("Vertical", 2))
sketch15.addConstraint(Sketcher.Constraint("Horizontal", 3))
sketch15.addConstraint(Sketcher.Constraint("DistanceX", 1, 2, 1, 1, Q("56 mm")))
sketch15.addConstraint(Sketcher.Constraint("DistanceY", 0, 2, 0, 1, Q("10 mm")))
sketch15.addConstraint(Sketcher.Constraint("DistanceX", -1, 1, 0, 2, Q("261 mm")))
sketch15.addConstraint(Sketcher.Constraint("DistanceY", -1, 1, 0, 2, Q("365 mm")))
pocket11 = doc.addObject("PartDesign::Pocket", "Pocket010")
body.addObject(pocket11)
pocket11.Profile = sketch15
pocket11.Length = 1
pocket11.Reversed = True

sketch16 = doc.addObject("Sketcher::SketchObject", "Sketch015")
body.addObject(sketch16)
sketch16.AttachmentSupport = (doc.XZ_Plane, [""])
sketch16.MapMode = "FlatFace"
sketch16.AttachmentOffset = App.Placement(Vector(0, 0, -20.173044), App.Rotation())
add_polygon(sketch16, [(261, 85), (261, 75), (205, 75), (205, 85)])
sketch16.addConstraint(Sketcher.Constraint("Vertical", 0))
sketch16.addConstraint(Sketcher.Constraint("Horizontal", 1))
sketch16.addConstraint(Sketcher.Constraint("Vertical", 2))
sketch16.addConstraint(Sketcher.Constraint("Horizontal", 3))
sketch16.addConstraint(Sketcher.Constraint("DistanceX", 1, 2, 1, 1, Q("56 mm")))
sketch16.addConstraint(Sketcher.Constraint("DistanceY", 0, 2, 0, 1, Q("10 mm")))
sketch16.addConstraint(Sketcher.Constraint("DistanceX", -1, 1, 0, 2, Q("261 mm")))
sketch16.addConstraint(Sketcher.Constraint("DistanceY", -1, 1, 0, 2, Q("75 mm")))
pocket12 = doc.addObject("PartDesign::Pocket", "Pocket011")
body.addObject(pocket12)
pocket12.Profile = sketch16
pocket12.Length = 1
pocket12.Reversed = True

sketch17 = doc.addObject("Sketcher::SketchObject", "Sketch016")
body.addObject(sketch17)
sketch17.AttachmentSupport = (doc.XZ_Plane, [""])
sketch17.MapMode = "FlatFace"
sketch17.AttachmentOffset = App.Placement(Vector(0, 0, -19.173044), App.Rotation())
sketch17.addGeometry(Part.Circle(Vector(-254.5, 80, 0), Vector(0, 0, 1), 1.6), False)
sketch17.addGeometry(Part.Circle(Vector(-211.5, 80, 0), Vector(0, 0, 1), 1.6), False)
sketch17.addGeometry(Part.Circle(Vector(-254.5, 370, 0), Vector(0, 0, 1), 1.6), False)
sketch17.addGeometry(Part.Circle(Vector(-211.5, 370, 0), Vector(0, 0, 1), 1.6), False)
sketch17.addGeometry(Part.Circle(Vector(211.5, 370, 0), Vector(0, 0, 1), 1.6), False)
sketch17.addGeometry(Part.Circle(Vector(254.5, 370, 0), Vector(0, 0, 1), 1.6), False)
sketch17.addGeometry(Part.Circle(Vector(211.5, 80, 0), Vector(0, 0, 1), 1.6), False)
sketch17.addGeometry(Part.Circle(Vector(254.5, 80, 0), Vector(0, 0, 1), 1.6), False)
sketch17.addConstraint(Sketcher.Constraint("Equal", 0, 1))
sketch17.addConstraint(Sketcher.Constraint("Equal", 1, 2))
sketch17.addConstraint(Sketcher.Constraint("Equal", 2, 3))
sketch17.addConstraint(Sketcher.Constraint("Equal", 3, 4))
sketch17.addConstraint(Sketcher.Constraint("Equal", 4, 5))
sketch17.addConstraint(Sketcher.Constraint("Equal", 5, 6))
sketch17.addConstraint(Sketcher.Constraint("Equal", 6, 7))
sketch17.addConstraint(Sketcher.Constraint("Symmetric", 3, 3, 4, 3, -2))
sketch17.addConstraint(Sketcher.Constraint("Symmetric", 2, 3, 5, 3, -2))
sketch17.addConstraint(Sketcher.Constraint("Symmetric", 1, 3, 6, 3, -2))
sketch17.addConstraint(Sketcher.Constraint("Symmetric", 0, 3, 7, 3, -2))
sketch17.addConstraint(Sketcher.Constraint("Horizontal", 0, 3, 1, 3))
sketch17.addConstraint(Sketcher.Constraint("Horizontal", 2, 3, 3, 3))
sketch17.addConstraint(Sketcher.Constraint("Vertical", 0, 3, 2, 3))
sketch17.addConstraint(Sketcher.Constraint("Vertical", 1, 3, 3, 3))
sketch17.addConstraint(Sketcher.Constraint("Diameter", 0, Q("3.3 mm")))
sketch17.addConstraint(Sketcher.Constraint("DistanceY", -1, 1, 0, 3, Q("80 mm")))
sketch17.addConstraint(Sketcher.Constraint("DistanceY", -1, 1, 2, 3, Q("370 mm")))
sketch17.addConstraint(Sketcher.Constraint("DistanceX", 0, 3, 1, 3, Q("43 mm")))
sketch17.addConstraint(Sketcher.Constraint("DistanceX", 3, 3, 4, 3, Q("423 mm")))
doc.recompute()
hole = doc.addObject("PartDesign::Hole", "Hole")
body.addObject(hole)
hole.Profile = sketch17
hole.ThreadType = "None"
hole.Diameter = 3.3
hole.DepthType = "Dimension"
hole.Depth = 2
hole.DrillPoint = "Flat"
hole.Reversed = True

sketch18 = doc.addObject("Sketcher::SketchObject", "Sketch017")
body.addObject(sketch18)
sketch18.AttachmentSupport = (doc.XZ_Plane, [""])
sketch18.MapMode = "FlatFace"
sketch18.AttachmentOffset = App.Placement(Vector(0, 0, -120.173044), App.Rotation())
sketch18.addGeometry(Part.Circle(Vector(225, 95, 0), Vector(0, 0, 1), 8), False)
sketch18.addConstraint(Sketcher.Constraint("Diameter", 0, Q("17 mm")))
sketch18.addConstraint(Sketcher.Constraint("DistanceX", -1, 1, 0, 3, Q("225 mm")))
sketch18.addConstraint(Sketcher.Constraint("DistanceY", -1, 1, 0, 3, Q("95 mm")))
doc.recompute()
hole2 = doc.addObject("PartDesign::Hole", "Hole001")
body.addObject(hole2)
hole2.Profile = sketch18
hole2.ThreadType = "None"
hole2.Diameter = 17
hole2.DepthType = "Dimension"
hole2.Depth = 3
hole2.DrillPoint = "Flat"
hole2.Reversed = True

sketch19 = doc.addObject("Sketcher::SketchObject", "Sketch018")
body.addObject(sketch19)
sketch19.AttachmentSupport = (doc.XZ_Plane, [""])
sketch19.MapMode = "FlatFace"
sketch19.AttachmentOffset = App.Placement(Vector(0, 0, -120.173044), App.Rotation())
sketch19.addGeometry(Part.Circle(Vector(-225, 100, 0), Vector(0, 0, 1), 8), False)
sketch19.addGeometry(Part.Circle(Vector(-225, 125, 0), Vector(0, 0, 1), 8), False)
sketch19.addGeometry(Part.Circle(Vector(-225, 325, 0), Vector(0, 0, 1), 8), False)
sketch19.addGeometry(Part.Circle(Vector(-225, 350, 0), Vector(0, 0, 1), 8), False)
sketch19.addConstraint(Sketcher.Constraint("Equal", 0, 1))
sketch19.addConstraint(Sketcher.Constraint("Equal", 1, 2))
sketch19.addConstraint(Sketcher.Constraint("Equal", 2, 3))
sketch19.addConstraint(Sketcher.Constraint("Vertical", 0, 3, 1, 3))
sketch19.addConstraint(Sketcher.Constraint("Vertical", 1, 3, 2, 3))
sketch19.addConstraint(Sketcher.Constraint("Vertical", 2, 3, 3, 3))
sketch19.addConstraint(Sketcher.Constraint("Diameter", 0, Q("17 mm")))
sketch19.addConstraint(Sketcher.Constraint("DistanceX", 0, 3, -1, 1, Q("225 mm")))
sketch19.addConstraint(Sketcher.Constraint("DistanceY", -1, 1, 0, 3, Q("100 mm")))
sketch19.addConstraint(Sketcher.Constraint("DistanceY", -1, 1, 1, 3, Q("125 mm")))
sketch19.addConstraint(Sketcher.Constraint("DistanceY", -1, 1, 2, 3, Q("325 mm")))
sketch19.addConstraint(Sketcher.Constraint("DistanceY", -1, 1, 3, 3, Q("350 mm")))
doc.recompute()
hole3 = doc.addObject("PartDesign::Hole", "Hole002")
body.addObject(hole3)
hole3.Profile = sketch19
hole3.ThreadType = "None"
hole3.Diameter = 17
hole3.DepthType = "Dimension"
hole3.Depth = 103
hole3.DrillPoint = "Flat"
hole3.Reversed = True
doc.recompute()

fillet = doc.addObject("PartDesign::Fillet", "Fillet")
body.addObject(fillet)
fillet.Base = (hole3, edges_at(hole3, [
    (-180, 120.173, 225),
    (180, 120.173, 225),
    (276, 120.173, 225),
    (-276, 120.173, 225),
]))
fillet.Radius = 3

doc.recompute()
